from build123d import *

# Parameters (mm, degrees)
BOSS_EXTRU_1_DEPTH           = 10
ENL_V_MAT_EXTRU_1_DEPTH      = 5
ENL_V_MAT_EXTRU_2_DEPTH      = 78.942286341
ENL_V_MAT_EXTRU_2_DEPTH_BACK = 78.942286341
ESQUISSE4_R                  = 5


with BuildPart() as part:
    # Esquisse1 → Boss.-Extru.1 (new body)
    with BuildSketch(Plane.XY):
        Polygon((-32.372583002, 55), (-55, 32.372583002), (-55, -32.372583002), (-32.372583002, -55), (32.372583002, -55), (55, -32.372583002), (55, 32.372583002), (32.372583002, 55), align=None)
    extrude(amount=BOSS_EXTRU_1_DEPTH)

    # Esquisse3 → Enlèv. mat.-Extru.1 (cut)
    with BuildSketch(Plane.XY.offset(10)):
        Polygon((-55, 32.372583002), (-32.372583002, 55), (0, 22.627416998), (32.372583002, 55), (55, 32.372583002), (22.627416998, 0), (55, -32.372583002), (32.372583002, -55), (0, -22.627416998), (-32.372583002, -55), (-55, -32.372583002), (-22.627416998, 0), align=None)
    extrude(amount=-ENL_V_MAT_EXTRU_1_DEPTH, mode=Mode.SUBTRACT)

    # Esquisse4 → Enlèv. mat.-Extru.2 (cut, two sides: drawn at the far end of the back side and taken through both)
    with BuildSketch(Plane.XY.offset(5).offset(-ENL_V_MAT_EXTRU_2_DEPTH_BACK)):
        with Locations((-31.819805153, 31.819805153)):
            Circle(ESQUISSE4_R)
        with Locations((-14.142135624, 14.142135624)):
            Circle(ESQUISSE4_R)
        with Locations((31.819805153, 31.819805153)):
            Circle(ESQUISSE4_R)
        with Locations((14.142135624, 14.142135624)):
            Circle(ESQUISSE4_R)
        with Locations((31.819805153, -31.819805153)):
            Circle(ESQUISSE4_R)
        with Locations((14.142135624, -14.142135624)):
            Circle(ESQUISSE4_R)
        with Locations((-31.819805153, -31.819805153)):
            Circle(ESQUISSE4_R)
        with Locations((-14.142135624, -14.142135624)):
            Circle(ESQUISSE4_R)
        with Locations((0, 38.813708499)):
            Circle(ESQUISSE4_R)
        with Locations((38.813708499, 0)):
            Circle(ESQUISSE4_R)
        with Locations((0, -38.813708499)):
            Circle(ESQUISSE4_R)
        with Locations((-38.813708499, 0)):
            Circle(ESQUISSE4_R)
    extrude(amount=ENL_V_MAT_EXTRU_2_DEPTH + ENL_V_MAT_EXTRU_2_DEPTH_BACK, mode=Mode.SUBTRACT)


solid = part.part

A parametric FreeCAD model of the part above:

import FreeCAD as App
import Part
import Sketcher

V = App.Vector


def add_polygon(sketch, points):
    """Adds a closed chain of lines whose ends are joined by coincident constraints."""
    first, n = sketch.GeometryCount, len(points)
    for a, b in zip(points, points[1:] + points[:1]):
        sketch.addGeometry(Part.LineSegment(App.Vector(*a, 0), App.Vector(*b, 0)), False)
    for i in range(n):
        sketch.addConstraint(Sketcher.Constraint("Coincident", first + i, 2, first + (i + 1) % n, 1))

doc = App.newDocument("Part")
body = doc.addObject("PartDesign::Body", "Body")

# Sketch on XY plane
sketch1 = doc.addObject("Sketcher::SketchObject", "Sketch")
body.addObject(sketch1)
sketch1.AttachmentSupport = (doc.XY_Plane, [""])
sketch1.MapMode = "FlatFace"
add_polygon(sketch1, [(-32.372583, 55), (-55, 32.372583), (-55, -32.372583), (-32.372583, -55), (32.372583, -55), (55, -32.372583), (55, 32.372583), (32.372583, 55)])  # lines 0-7
sketch1.addConstraint([
    Sketcher.Constraint("Vertical", 1),
    Sketcher.Constraint("Horizontal", 3),
    Sketcher.Constraint("Vertical", 5),
    Sketcher.Constraint("Horizontal", 7),
    Sketcher.Constraint("Symmetric", 0, 2, 4, 2, -1, 1),
    Sketcher.Constraint("Symmetric", 2, 2, 6, 2, -1, 1),
    Sketcher.Constraint("Perpendicular", 0, 2),
    Sketcher.Constraint("Perpendicular", 2, 4),
    Sketcher.Constraint("Perpendicular", 4, 6),
    Sketcher.Constraint("Horizontal", 1, 2, 4, 2),
    Sketcher.Constraint("Vertical", 3, 2, 6, 2),
    Sketcher.Constraint("Equal", 7, 1),
    Sketcher.Constraint("Distance", 0, 32.0),
    Sketcher.Constraint("DistanceX", 0, 2, -1, 1, 55.0),
])
pad1 = doc.addObject("PartDesign::Pad", "Pad")
body.addObject(pad1)
pad1.Profile = sketch1
pad1.Length = 10

# Sketch on XY plane
sketch2 = doc.addObject("Sketcher::SketchObject", "Sketch001")
body.addObject(sketch2)
sketch2.AttachmentSupport = (doc.XY_Plane, [""])
sketch2.MapMode = "FlatFace"
sketch2.AttachmentOffset = App.Placement(V(0, 0, 10), App.Rotation())
add_polygon(sketch2, [(-32.372583, 55), (-55, 32.372583), (-22.627417, 0), (-55, -32.372583), (-32.372583, -55), (0, -22.627417), (32.372583, -55), (55, -32.372583), (22.627417, 0), (55, 32.372583), (32.372583, 55), (0, 22.627417)])  # lines 0-11
sketch2.addConstraint([
    Sketcher.Constraint("Symmetric", 0, 2, 6, 2, -1, 1),
    Sketcher.Constraint("Symmetric", 1, 2, 7, 2, -1, 1),
    Sketcher.Constraint("Symmetric", 2, 2, 8, 2, -1, 1),
    Sketcher.Constraint("Symmetric", 3, 2, 9, 2, -1, 1),
    Sketcher.Constraint("Symmetric", 4, 2, 10, 2, -1, 1),
    Sketcher.Constraint("Symmetric", 5, 2, 11, 2, -1, 1),
    Sketcher.Constraint("Symmetric", 3, 2, 5, 2, -2),
    Sketcher.Constraint("Symmetric", 2, 2, 6, 2, -2),
    Sketcher.Constraint("PointOnObject", 1, 2, -1),
    Sketcher.Constraint("PointOnObject", 4, 2, -2),
    Sketcher.Constraint("Perpendicular", 0, 1),
    Sketcher.Constraint("Perpendicular", 1, 2),
    Sketcher.Constraint("Perpendicular", 3, 4),
    Sketcher.Constraint("Equal", 2, 4),
    Sketcher.Constraint("Distance", 0, 32.0),
    Sketcher.Constraint("DistanceX", 0, 2, -1, 1, 55.0),
])
pocket1 = doc.addObject("PartDesign::Pocket", "Pocket")
body.addObject(pocket1)
pocket1.Profile = sketch2
pocket1.Length = 5

# Sketch on XY plane
sketch3 = doc.addObject("Sketcher::SketchObject", "Sketch002")
body.addObject(sketch3)
sketch3.AttachmentSupport = (doc.XY_Plane, [""])
sketch3.MapMode = "FlatFace"
sketch3.AttachmentOffset = App.Placement(V(0, 0, 5), App.Rotation())
sketch3.addGeometry([
    Part.Circle(V(-31.819805, 31.819805, 0), V(0, 0, 1), 5),  # 0
    Part.Circle(V(-14.142136, 14.142136, 0), V(0, 0, 1), 5),  # 1
    Part.Circle(V(31.819805, 31.819805, 0), V(0, 0, 1), 5),  # 2
    Part.Circle(V(14.142136, 14.142136, 0), V(0, 0, 1), 5),  # 3
    Part.Circle(V(31.819805, -31.819805, 0), V(0, 0, 1), 5),  # 4
    Part.Circle(V(14.142136, -14.142136, 0), V(0, 0, 1), 5),  # 5
    Part.Circle(V(-31.819805, -31.819805, 0), V(0, 0, 1), 5),  # 6
    Part.Circle(V(-14.142136, -14.142136, 0), V(0, 0, 1), 5),  # 7
    Part.Circle(V(0, 38.813708, 0), V(0, 0, 1), 5),  # 8
    Part.Circle(V(38.813708, 0, 0), V(0, 0, 1), 5),  # 9
    Part.Circle(V(0, -38.813708, 0), V(0, 0, 1), 5),  # 10
    Part.Circle(V(-38.813708, 0, 0), V(0, 0, 1), 5),  # 11
], False)
sketch3.addConstraint([
    Sketcher.Constraint("Equal", 0, 1),
    Sketcher.Constraint("Equal", 1, 2),
    Sketcher.Constraint("Equal", 2, 3),
    Sketcher.Constraint("Equal", 3, 4),
    Sketcher.Constraint("Equal", 4, 5),
    Sketcher.Constraint("Equal", 5, 6),
    Sketcher.Constraint("Equal", 6, 7),
    Sketcher.Constraint("Equal", 7, 8),
    Sketcher.Constraint("Equal", 8, 9),
    Sketcher.Constraint("Equal", 9, 10),
    Sketcher.Constraint("Equal", 10, 11),
    Sketcher.Constraint("Symmetric", 0, 3, 4, 3, -1, 1),
    Sketcher.Constraint("Symmetric", 1, 3, 5, 3, -1, 1),
    Sketcher.Constraint("Symmetric", 2, 3, 6, 3, -1, 1),
    Sketcher.Constraint("Symmetric", 3, 3, 7, 3, -1, 1),
    Sketcher.Constraint("Symmetric", 8, 3, 10, 3, -1, 1),
    Sketcher.Constraint("Symmetric", 9, 3, 11, 3, -1, 1),
    Sketcher.Constraint("Symmetric", 0, 3, 2, 3, -2),
    Sketcher.Constraint("Symmetric", 1, 3, 3, 3, -2),
    Sketcher.Constraint("PointOnObject", 8, 3, -2),
    Sketcher.Constraint("PointOnObject", 9, 3, -1),
    Sketcher.Constraint("Diameter", 0, 10.0),
    Sketcher.Constraint("DistanceY", -1, 1, 8, 3, 38.813708),
    Sketcher.Constraint("DistanceX", -1, 1, 9, 3, 38.813708),
    Sketcher.Constraint("DistanceX", 0, 3, 1, 3, 17.67767),
    Sketcher.Constraint("DistanceY", 1, 3, 0, 3, 17.67767),
    Sketcher.Constraint("DistanceX", 1, 3, 2, 3, 45.961941),
    Sketcher.Constraint("DistanceY", 4, 3, 3, 3, 45.961941),
])
pocket2 = doc.addObject("PartDesign::Pocket", "Pocket001")
body.addObject(pocket2)
pocket2.Profile = sketch3
pocket2.Type = "ThroughAll"
pocket2.Midplane = True

doc.recompute()
